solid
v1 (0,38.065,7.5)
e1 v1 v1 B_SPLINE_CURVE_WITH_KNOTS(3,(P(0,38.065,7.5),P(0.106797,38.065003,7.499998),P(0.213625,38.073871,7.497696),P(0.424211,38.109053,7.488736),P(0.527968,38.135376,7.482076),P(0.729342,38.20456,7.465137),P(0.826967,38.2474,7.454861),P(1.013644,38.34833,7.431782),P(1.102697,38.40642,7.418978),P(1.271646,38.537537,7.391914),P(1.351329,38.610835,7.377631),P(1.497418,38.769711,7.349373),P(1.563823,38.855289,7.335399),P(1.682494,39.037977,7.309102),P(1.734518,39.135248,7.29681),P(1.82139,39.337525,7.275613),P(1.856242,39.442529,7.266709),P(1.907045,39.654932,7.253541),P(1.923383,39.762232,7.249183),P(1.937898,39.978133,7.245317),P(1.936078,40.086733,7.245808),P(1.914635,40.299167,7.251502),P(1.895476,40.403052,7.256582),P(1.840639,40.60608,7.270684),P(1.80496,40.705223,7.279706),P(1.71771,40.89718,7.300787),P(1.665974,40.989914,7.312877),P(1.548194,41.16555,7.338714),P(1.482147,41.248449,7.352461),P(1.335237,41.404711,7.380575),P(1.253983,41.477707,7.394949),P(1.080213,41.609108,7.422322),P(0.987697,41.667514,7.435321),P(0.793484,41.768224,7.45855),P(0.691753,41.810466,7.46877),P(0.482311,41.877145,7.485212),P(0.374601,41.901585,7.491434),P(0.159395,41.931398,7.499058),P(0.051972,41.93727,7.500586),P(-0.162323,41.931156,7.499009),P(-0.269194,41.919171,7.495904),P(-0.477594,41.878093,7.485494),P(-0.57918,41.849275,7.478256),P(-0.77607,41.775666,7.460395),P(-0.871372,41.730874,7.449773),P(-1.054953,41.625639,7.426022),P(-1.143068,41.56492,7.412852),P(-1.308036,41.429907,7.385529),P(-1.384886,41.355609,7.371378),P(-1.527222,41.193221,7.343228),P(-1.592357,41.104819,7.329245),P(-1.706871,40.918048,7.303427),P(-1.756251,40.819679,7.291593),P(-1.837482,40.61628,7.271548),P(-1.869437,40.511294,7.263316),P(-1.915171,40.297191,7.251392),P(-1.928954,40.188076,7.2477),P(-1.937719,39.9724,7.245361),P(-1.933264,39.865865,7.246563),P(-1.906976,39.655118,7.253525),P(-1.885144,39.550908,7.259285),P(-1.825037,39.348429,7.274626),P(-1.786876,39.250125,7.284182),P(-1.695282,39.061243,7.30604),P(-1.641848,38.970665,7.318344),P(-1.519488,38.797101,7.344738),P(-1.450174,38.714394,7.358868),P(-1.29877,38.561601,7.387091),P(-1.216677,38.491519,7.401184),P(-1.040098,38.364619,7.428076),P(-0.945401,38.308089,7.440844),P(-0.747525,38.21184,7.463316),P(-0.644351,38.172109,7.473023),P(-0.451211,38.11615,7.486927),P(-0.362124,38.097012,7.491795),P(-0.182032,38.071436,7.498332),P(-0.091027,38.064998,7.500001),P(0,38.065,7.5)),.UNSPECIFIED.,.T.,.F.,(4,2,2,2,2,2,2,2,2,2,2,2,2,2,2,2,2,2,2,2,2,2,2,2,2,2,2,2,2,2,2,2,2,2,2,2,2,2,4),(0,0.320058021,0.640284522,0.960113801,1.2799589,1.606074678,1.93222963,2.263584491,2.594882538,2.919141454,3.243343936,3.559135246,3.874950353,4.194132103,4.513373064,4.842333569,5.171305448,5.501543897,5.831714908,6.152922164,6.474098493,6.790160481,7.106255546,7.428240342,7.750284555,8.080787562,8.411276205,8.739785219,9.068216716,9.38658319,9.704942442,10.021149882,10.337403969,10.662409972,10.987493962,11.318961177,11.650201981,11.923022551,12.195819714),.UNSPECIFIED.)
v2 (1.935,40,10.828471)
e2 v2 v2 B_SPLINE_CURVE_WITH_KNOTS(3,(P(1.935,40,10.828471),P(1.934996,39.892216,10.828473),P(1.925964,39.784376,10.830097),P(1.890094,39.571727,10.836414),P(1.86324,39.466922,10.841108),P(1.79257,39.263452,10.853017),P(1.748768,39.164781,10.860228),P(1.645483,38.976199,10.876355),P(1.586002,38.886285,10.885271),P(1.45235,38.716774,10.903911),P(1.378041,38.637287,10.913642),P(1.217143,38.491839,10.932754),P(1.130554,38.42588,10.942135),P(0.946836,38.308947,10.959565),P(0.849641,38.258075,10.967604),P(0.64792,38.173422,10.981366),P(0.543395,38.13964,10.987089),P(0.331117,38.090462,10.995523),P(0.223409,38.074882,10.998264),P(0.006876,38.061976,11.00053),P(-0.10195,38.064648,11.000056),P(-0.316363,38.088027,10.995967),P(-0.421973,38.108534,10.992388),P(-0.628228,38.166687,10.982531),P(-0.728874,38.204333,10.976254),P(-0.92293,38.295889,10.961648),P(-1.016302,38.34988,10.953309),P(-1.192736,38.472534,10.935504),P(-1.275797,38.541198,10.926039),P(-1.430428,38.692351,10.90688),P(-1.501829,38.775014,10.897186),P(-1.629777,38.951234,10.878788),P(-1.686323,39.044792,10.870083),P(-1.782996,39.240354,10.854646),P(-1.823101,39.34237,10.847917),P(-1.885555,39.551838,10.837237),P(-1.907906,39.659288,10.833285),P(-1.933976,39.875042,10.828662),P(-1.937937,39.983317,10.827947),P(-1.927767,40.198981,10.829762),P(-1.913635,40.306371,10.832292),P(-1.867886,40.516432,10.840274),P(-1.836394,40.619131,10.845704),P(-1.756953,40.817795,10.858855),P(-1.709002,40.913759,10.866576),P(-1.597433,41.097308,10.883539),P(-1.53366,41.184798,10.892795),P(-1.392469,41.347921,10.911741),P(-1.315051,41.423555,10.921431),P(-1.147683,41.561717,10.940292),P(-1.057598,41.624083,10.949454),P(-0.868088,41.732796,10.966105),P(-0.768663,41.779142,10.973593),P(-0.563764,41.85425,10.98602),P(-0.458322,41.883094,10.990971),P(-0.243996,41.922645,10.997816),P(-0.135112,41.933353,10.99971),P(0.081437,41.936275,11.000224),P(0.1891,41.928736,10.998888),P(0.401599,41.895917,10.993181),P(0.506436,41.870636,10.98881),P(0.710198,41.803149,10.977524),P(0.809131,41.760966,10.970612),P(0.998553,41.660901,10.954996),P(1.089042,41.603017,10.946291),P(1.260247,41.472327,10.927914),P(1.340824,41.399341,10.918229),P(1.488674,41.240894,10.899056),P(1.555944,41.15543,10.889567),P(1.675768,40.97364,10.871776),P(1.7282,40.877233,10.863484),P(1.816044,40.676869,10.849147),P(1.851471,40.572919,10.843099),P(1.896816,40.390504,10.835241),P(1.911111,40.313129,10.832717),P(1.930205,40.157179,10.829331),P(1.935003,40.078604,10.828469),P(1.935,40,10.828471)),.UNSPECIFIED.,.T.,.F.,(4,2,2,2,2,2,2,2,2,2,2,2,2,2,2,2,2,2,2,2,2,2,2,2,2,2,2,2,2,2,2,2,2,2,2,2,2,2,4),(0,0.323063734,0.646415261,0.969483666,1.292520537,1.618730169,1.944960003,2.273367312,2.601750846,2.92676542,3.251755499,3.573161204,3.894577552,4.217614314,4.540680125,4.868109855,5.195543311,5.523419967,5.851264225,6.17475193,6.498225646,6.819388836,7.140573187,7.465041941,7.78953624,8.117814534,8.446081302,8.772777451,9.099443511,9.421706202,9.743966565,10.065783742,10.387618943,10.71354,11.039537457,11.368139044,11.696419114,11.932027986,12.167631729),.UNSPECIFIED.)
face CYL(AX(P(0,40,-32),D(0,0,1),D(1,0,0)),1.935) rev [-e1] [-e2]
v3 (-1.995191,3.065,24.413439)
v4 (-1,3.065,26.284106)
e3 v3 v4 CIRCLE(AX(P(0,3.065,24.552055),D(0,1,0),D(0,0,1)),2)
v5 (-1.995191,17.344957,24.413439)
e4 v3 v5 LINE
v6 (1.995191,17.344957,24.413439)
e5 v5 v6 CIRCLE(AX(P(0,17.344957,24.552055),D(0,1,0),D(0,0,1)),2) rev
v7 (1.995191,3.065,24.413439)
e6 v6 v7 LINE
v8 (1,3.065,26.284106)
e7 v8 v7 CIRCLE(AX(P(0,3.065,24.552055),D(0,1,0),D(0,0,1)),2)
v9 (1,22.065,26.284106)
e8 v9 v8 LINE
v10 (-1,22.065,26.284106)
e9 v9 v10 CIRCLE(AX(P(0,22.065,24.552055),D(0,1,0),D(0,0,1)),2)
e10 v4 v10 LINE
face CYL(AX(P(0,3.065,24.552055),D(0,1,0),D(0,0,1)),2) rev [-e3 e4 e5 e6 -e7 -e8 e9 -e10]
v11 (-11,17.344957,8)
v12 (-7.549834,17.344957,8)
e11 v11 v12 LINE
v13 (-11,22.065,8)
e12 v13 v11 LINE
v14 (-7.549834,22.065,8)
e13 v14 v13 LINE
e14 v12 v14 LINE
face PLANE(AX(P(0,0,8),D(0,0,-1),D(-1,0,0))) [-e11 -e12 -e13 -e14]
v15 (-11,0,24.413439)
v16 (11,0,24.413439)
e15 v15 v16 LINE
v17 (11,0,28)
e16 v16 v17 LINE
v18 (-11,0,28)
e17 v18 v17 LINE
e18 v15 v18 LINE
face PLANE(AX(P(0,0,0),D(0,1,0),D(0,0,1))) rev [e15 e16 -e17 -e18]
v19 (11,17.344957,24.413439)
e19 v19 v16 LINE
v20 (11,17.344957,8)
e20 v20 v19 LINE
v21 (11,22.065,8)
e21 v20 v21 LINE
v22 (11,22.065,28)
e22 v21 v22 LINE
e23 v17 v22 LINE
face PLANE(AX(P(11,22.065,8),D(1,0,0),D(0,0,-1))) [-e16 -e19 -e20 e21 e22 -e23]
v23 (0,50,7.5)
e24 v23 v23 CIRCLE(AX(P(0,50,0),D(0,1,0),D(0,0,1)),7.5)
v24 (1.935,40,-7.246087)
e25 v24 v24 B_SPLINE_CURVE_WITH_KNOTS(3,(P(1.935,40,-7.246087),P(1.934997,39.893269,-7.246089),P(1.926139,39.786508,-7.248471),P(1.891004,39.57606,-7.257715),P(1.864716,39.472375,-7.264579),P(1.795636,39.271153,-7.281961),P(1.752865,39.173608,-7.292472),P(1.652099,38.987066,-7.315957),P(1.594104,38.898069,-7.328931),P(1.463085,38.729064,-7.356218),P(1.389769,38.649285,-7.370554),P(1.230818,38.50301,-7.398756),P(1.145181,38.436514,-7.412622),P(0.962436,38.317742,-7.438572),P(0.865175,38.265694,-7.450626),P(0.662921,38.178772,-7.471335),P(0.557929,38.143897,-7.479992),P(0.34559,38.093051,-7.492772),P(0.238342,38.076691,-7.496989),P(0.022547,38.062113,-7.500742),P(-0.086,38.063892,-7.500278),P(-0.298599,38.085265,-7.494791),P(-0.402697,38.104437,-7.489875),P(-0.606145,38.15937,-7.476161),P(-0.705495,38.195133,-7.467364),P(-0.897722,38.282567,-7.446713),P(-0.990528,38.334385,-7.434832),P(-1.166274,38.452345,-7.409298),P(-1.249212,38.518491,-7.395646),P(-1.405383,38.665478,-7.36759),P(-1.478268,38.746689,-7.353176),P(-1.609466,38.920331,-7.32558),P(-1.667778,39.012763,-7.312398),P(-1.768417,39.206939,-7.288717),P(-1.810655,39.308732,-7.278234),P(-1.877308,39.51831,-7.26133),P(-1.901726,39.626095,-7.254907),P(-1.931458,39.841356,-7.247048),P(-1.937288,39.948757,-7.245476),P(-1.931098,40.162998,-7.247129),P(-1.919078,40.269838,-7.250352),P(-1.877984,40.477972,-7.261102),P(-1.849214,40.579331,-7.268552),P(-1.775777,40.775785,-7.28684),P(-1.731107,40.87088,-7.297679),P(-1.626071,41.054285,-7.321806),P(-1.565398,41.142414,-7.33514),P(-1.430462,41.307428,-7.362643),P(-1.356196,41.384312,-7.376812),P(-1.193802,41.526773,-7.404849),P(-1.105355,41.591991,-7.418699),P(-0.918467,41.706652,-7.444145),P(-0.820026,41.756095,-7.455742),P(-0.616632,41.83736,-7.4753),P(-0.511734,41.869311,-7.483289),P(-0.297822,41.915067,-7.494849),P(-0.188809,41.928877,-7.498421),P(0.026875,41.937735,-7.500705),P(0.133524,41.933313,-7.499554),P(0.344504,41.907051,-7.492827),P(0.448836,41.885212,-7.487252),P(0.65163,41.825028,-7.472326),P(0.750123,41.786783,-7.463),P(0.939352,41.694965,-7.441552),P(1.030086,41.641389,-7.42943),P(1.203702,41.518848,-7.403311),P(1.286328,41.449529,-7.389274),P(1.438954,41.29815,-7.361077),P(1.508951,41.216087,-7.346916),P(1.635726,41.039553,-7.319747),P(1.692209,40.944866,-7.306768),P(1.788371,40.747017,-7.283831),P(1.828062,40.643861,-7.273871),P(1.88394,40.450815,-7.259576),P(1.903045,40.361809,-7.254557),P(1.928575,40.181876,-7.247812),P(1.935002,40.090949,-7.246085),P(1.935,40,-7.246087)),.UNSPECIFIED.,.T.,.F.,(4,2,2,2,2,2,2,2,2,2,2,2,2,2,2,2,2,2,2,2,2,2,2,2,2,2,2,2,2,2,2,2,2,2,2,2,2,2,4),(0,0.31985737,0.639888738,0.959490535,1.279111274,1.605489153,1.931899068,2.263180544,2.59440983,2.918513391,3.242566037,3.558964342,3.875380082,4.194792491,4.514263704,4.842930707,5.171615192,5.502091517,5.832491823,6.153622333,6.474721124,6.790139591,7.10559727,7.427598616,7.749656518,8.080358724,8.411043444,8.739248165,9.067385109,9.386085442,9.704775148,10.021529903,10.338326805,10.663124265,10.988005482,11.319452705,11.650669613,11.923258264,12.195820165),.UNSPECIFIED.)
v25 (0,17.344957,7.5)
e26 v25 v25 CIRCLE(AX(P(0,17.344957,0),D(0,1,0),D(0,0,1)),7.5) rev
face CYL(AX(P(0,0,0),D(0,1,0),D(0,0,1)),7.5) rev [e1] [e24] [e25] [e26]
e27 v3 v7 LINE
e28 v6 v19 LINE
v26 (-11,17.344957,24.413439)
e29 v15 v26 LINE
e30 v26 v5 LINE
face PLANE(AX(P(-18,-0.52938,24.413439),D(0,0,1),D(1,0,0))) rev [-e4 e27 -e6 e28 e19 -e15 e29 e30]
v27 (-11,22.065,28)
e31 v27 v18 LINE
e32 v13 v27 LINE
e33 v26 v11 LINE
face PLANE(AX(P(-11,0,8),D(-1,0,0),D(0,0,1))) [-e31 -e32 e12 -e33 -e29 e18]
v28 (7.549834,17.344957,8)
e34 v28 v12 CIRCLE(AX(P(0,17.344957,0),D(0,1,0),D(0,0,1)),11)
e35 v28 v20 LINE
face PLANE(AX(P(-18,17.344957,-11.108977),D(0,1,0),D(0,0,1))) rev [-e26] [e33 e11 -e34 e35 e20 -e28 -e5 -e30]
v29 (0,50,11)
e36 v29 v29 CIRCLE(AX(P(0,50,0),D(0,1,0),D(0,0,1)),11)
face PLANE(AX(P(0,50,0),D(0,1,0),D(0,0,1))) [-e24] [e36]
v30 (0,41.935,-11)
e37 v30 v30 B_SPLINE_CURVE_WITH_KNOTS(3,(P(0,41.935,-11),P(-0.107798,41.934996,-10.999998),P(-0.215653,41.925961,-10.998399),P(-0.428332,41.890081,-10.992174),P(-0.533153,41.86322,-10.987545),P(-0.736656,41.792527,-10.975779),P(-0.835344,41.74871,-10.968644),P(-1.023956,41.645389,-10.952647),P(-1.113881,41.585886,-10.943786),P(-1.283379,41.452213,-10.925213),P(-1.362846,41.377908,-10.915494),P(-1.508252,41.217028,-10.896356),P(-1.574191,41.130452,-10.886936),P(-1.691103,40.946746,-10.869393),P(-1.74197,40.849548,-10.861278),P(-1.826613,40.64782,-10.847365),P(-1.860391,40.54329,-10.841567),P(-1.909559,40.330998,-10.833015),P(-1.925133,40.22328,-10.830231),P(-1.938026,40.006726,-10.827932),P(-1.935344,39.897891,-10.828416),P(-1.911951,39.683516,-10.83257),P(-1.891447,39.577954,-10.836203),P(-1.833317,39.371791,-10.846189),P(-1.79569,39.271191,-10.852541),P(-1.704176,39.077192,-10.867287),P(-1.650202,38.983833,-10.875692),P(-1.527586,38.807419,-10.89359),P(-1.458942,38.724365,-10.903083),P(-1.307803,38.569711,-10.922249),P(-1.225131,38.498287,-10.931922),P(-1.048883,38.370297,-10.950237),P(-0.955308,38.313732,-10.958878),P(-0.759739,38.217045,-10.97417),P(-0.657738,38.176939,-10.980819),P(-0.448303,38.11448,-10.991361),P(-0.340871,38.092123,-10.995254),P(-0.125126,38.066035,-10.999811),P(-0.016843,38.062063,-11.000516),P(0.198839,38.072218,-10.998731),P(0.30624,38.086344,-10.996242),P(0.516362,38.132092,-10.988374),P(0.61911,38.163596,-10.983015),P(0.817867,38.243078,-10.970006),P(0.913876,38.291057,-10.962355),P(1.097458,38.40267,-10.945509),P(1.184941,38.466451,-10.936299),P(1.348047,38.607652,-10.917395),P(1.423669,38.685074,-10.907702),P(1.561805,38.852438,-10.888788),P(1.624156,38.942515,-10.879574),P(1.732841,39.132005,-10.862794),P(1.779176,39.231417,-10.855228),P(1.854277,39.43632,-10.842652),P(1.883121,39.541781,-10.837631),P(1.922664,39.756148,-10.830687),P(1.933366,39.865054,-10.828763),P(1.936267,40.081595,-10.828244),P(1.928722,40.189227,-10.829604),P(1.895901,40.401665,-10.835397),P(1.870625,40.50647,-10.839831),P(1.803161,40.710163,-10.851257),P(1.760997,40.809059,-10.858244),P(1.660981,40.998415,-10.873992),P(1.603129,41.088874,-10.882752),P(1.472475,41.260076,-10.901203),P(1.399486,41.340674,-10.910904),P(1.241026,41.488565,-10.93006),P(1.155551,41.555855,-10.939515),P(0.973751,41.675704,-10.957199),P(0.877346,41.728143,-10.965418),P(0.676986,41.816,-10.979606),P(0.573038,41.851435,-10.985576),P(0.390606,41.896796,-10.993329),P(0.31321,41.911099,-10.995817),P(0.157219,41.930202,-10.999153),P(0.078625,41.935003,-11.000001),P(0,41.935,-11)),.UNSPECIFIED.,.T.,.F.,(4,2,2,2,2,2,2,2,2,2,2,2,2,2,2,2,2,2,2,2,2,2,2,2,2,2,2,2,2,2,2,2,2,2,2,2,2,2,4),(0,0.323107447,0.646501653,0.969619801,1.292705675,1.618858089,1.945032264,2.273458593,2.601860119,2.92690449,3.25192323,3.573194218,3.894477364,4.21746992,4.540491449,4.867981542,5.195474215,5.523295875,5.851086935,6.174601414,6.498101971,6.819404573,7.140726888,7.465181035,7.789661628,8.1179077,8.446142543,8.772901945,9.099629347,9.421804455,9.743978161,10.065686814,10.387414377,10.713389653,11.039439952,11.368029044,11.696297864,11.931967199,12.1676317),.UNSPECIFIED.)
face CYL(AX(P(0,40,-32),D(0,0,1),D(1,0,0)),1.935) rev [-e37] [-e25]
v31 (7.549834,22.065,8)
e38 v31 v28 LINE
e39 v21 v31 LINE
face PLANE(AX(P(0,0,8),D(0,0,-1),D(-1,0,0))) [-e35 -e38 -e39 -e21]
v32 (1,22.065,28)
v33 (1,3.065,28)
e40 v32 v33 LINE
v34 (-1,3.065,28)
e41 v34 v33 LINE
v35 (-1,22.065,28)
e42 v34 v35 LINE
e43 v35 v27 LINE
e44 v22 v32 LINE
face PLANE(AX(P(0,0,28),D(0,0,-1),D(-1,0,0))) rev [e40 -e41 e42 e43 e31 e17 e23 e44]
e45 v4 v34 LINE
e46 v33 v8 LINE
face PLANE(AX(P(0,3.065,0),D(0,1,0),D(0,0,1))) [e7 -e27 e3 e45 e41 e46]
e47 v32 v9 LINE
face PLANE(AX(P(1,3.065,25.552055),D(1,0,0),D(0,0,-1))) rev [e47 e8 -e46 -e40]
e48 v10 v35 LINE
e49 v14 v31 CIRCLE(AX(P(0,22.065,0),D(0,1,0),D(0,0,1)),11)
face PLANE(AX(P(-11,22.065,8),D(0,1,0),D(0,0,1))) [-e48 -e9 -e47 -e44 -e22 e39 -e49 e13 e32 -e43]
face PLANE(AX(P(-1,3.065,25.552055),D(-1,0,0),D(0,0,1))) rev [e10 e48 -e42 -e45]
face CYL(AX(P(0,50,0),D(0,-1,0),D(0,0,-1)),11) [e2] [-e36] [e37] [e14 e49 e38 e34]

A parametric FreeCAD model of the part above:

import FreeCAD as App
import Part
import Sketcher

V = App.Vector
Q = App.Units.Quantity

doc = App.newDocument("Part")
body = doc.addObject("PartDesign::Body", "Body")

# Sketch on XZ plane
sketch1 = body.newObject("Sketcher::SketchObject", "Sketch")
sketch1.AttachmentSupport = (doc.getObject("XZ_Plane"), [""])
sketch1.MapMode = "FlatFace"
sketch1.addGeometry(Part.Circle(V(0, 0, 0), V(0, 0, 1), 11), False)
sketch1.addConstraint([
    Sketcher.Constraint("Coincident", 0, 3, -1, 1),
    Sketcher.Constraint("Diameter", 0, Q("22 mm")),
])
pad1 = body.newObject("PartDesign::Pad", "Pad")
pad1.Profile = sketch1
pad1.Length = 50
pad1.Reversed = True

# Sketch on XZ plane
sketch2 = body.newObject("Sketcher::SketchObject", "Sketch001")
sketch2.AttachmentSupport = (doc.getObject("XZ_Plane"), [""])
sketch2.MapMode = "FlatFace"
sketch2.AttachmentOffset = App.Placement(V(0, 0, -50), App.Rotation())
sketch2.addGeometry(Part.Circle(V(0, 0, 0), V(0, 0, 1), 8), False)
sketch2.addConstraint([
    Sketcher.Constraint("Coincident", 0, 3, -1, 1),
    Sketcher.Constraint("Diameter", 0, Q("15 mm")),
])
pocket1 = body.newObject("PartDesign::Pocket", "Pocket")
pocket1.Profile = sketch2
pocket1.Type = "ThroughAll"
pocket1.Reversed = True

# Sketch on XY plane
sketch3 = body.newObject("Sketcher::SketchObject", "Sketch002")
sketch3.AttachmentSupport = (doc.getObject("XY_Plane"), [""])
sketch3.MapMode = "FlatFace"
sketch3.AttachmentOffset = App.Placement(V(0, 0, 18), App.Rotation())
sketch3.addGeometry(Part.Circle(V(0, 40, 0), V(0, 0, 1), 1.9), False)
sketch3.addConstraint([
    Sketcher.Constraint("PointOnObject", 0, 3, -2),
    Sketcher.Constraint("Diameter", 0, Q("3.87 mm")),
    Sketcher.Constraint("DistanceY", -1, 1, 0, 3, Q("40 mm")),
])
pocket2 = body.newObject("PartDesign::Pocket", "Pocket001")
pocket2.Profile = sketch3
pocket2.Length = 50

# Sketch on XY plane
sketch4 = body.newObject("Sketcher::SketchObject", "Sketch003")
sketch4.AttachmentSupport = (doc.getObject("XY_Plane"), [""])
sketch4.MapMode = "FlatFace"
sketch4.AttachmentOffset = App.Placement(V(0, 0, 18), App.Rotation())
sketch4.addGeometry([
    Part.LineSegment(V(-11, 22, 0), V(-11, 0, 0)),
    Part.LineSegment(V(-11, 0, 0), V(11, 0, 0)),
    Part.LineSegment(V(11, 0, 0), V(11, 22, 0)),
    Part.LineSegment(V(11, 22, 0), V(-11, 22, 0)),
], False)
sketch4.addConstraint([
    Sketcher.Constraint("Coincident", 0, 2, 1, 1),
    Sketcher.Constraint("Coincident", 1, 2, 2, 1),
    Sketcher.Constraint("Coincident", 2, 2, 3, 1),
    Sketcher.Constraint("Coincident", 3, 2, 0, 1),
    Sketcher.Constraint("Vertical", 0),
    Sketcher.Constraint("Horizontal", 1),
    Sketcher.Constraint("Vertical", 2),
    Sketcher.Constraint("Horizontal", 3),
    Sketcher.Constraint("Symmetric", 0, 2, 1, 2, -1, 1),
    Sketcher.Constraint("DistanceX", 1, 1, 1, 2, Q("22 mm")),
    Sketcher.Constraint("DistanceY", 0, 2, 0, 1, Q("22.065 mm")),
])
pad2 = body.newObject("PartDesign::Pad", "Pad001")
pad2.Profile = sketch4
pad2.Type = "TwoLengths"
pad2.Length = 10
pad2.Length2 = 10

# Sketch on XZ plane
sketch5 = body.newObject("Sketcher::SketchObject", "Sketch004")
sketch5.AttachmentSupport = (doc.getObject("XZ_Plane"), [""])
sketch5.MapMode = "FlatFace"
sketch5.AttachmentOffset = App.Placement(V(0, 0, -22.065), App.Rotation())
sketch5.addGeometry([
    Part.LineSegment(V(-1, 25.6, 0), V(-1, 30.4, 0)),
    Part.LineSegment(V(-1, 30.4, 0), V(1, 30.4, 0)),
    Part.LineSegment(V(1, 30.4, 0), V(1, 25.6, 0)),
    Part.LineSegment(V(1, 25.6, 0), V(-1, 25.6, 0)),
], False)
sketch5.addConstraint([
    Sketcher.Constraint("Coincident", 0, 2, 1, 1),
    Sketcher.Constraint("Coincident", 1, 2, 2, 1),
    Sketcher.Constraint("Coincident", 2, 2, 3, 1),
    Sketcher.Constraint("Coincident", 3, 2, 0, 1),
    Sketcher.Constraint("Vertical", 0),
    Sketcher.Constraint("Horizontal", 1),
    Sketcher.Constraint("Vertical", 2),
    Sketcher.Constraint("Horizontal", 3),
    Sketcher.Constraint("DistanceX", 1, 1, 1, 2, Q("2 mm")),
    Sketcher.Constraint("DistanceX", 0, 2, -1, 1, Q("1 mm")),
    Sketcher.Constraint("DistanceY", 0, 1, 0, 2, Q("4.895889 mm")),
    Sketcher.Constraint("DistanceY", -1, 1, 0, 2, Q("30.447945 mm")),
])
pocket3 = body.newObject("PartDesign::Pocket", "Pocket002")
pocket3.Profile = sketch5
pocket3.Length = 19
pocket3.Reversed = True

# Sketch on XZ plane
sketch6 = body.newObject("Sketcher::SketchObject", "Sketch005")
sketch6.AttachmentSupport = (doc.getObject("XZ_Plane"), [""])
sketch6.MapMode = "FlatFace"
sketch6.AttachmentOffset = App.Placement(V(0, 0, -22.065), App.Rotation())
sketch6.addGeometry(Part.Circle(V(0, 24.6, 0), V(0, 0, 1), 2), False)
sketch6.addConstraint([
    Sketcher.Constraint("PointOnObject", 0, 3, -2),
    Sketcher.Constraint("Diameter", 0, Q("4 mm")),
    Sketcher.Constraint("DistanceY", -1, 1, 0, 3, Q("24.552055 mm")),
])
pocket4 = body.newObject("PartDesign::Pocket", "Pocket003")
pocket4.Profile = sketch6
pocket4.Length = 19
pocket4.Reversed = True

# Sketch on YZ plane
sketch7 = body.newObject("Sketcher::SketchObject", "Sketch006")
sketch7.AttachmentSupport = (doc.getObject("YZ_Plane"), [""])
sketch7.MapMode = "FlatFace"
sketch7.AttachmentOffset = App.Placement(V(0, 0, 11), App.Rotation())
sketch7.addGeometry([
    Part.LineSegment(V(17, 24, 0), V(-1, 24, 0)),
    Part.LineSegment(V(-1, 24, 0), V(-1, -11, 0)),
    Part.LineSegment(V(-1, -11, 0), V(17, -11, 0)),
    Part.LineSegment(V(17, -11, 0), V(17, 24, 0)),
], False)
sketch7.addConstraint([
    Sketcher.Constraint("Coincident", 0, 2, 1, 1),
    Sketcher.Constraint("Coincident", 1, 2, 2, 1),
    Sketcher.Constraint("Coincident", 2, 2, 3, 1),
    Sketcher.Constraint("Coincident", 3, 2, 0, 1),
    Sketcher.Constraint("Horizontal", 0),
    Sketcher.Constraint("Vertical", 1),
    Sketcher.Constraint("Horizontal", 2),
    Sketcher.Constraint("Vertical", 3),
    Sketcher.Constraint("DistanceX", 0, 2, 0, 1, Q("17.874337 mm")),
    Sketcher.Constraint("DistanceY", 1, 2, 1, 1, Q("35.522417 mm")),
    Sketcher.Constraint("DistanceX", 0, 2, -1, 1, Q("0.52938 mm")),
    Sketcher.Constraint("DistanceY", -1, 1, 0, 2, Q("24.413439 mm")),
])
pocket5 = body.newObject("PartDesign::Pocket", "Pocket004")
pocket5.Profile = sketch7
pocket5.Length = 29

doc.recompute()
